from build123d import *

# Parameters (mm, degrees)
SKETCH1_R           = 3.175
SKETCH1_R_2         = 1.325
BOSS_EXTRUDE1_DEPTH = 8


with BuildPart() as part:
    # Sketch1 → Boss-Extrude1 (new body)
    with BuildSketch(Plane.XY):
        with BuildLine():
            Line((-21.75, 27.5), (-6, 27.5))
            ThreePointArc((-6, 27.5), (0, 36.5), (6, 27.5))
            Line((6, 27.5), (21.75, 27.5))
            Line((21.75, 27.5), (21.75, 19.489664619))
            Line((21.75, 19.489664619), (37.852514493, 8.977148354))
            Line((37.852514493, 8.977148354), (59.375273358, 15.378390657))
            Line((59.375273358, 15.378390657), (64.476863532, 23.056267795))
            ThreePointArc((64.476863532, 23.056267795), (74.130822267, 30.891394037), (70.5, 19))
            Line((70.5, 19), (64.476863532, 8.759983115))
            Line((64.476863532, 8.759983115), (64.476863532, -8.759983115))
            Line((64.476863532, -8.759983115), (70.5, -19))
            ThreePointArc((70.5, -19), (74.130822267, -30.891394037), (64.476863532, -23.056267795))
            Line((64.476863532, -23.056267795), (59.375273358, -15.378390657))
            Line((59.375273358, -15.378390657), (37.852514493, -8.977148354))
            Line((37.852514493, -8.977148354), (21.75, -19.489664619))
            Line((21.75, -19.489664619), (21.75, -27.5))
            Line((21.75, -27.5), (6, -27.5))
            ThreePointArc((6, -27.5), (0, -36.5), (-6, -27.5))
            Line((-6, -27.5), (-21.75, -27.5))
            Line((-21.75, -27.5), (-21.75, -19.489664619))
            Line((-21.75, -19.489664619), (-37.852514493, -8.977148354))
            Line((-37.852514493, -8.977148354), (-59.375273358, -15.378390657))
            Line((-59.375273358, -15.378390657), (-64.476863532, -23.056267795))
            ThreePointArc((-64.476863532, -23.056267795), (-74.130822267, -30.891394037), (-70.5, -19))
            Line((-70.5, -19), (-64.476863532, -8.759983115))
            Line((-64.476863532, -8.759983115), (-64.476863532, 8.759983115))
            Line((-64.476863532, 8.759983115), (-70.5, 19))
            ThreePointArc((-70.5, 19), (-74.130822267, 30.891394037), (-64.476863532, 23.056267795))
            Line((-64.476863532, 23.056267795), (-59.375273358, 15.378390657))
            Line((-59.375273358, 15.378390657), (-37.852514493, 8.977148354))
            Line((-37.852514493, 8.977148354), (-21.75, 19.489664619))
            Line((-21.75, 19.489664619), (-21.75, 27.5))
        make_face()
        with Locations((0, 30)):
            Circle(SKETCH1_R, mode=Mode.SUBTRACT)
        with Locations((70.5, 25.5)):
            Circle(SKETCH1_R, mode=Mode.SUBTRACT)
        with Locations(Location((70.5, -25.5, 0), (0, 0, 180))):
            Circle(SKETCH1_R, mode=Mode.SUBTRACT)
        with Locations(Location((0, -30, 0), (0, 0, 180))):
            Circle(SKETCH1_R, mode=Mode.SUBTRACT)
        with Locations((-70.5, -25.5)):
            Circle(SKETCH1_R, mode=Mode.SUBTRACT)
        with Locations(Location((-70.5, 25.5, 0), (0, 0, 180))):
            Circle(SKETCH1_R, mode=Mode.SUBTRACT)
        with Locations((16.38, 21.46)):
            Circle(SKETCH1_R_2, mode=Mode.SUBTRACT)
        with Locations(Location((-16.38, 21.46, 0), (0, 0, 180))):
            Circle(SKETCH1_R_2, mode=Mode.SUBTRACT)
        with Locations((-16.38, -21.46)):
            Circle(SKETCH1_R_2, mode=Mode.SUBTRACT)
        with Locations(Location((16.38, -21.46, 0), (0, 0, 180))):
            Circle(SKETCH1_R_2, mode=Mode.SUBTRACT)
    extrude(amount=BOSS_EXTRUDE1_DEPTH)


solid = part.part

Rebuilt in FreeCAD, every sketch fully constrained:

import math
import FreeCAD as App
import Part
import Sketcher

V = App.Vector
Q = App.Units.Quantity

doc = App.newDocument("Part")
body = doc.addObject("PartDesign::Body", "Body")

# Sketch on XY plane
sketch1 = body.newObject("Sketcher::SketchObject", "Sketch")
sketch1.AttachmentSupport = (doc.getObject("XY_Plane"), [""])
sketch1.MapMode = "FlatFace"
sketch1.addGeometry([
    Part.LineSegment(V(-6, 27.5, 0), V(-21.8, 27.5, 0)),  # 0
    Part.LineSegment(V(-21.8, 27.5, 0), V(-21.8, 19.5, 0)),  # 1
    Part.LineSegment(V(-21.8, 19.5, 0), V(-37.9, 9, 0)),  # 2
    Part.LineSegment(V(-37.9, 9, 0), V(-59.4, 15.4, 0)),  # 3
    Part.LineSegment(V(-59.4, 15.4, 0), V(-64.5, 23.1, 0)),  # 4
    Part.ArcOfCircle(Part.Circle(V(-70.5, 25.5, 0), V(0, 0, 1), 6.5), math.radians(-22), math.radians(270)),  # 5
    Part.LineSegment(V(-70.5, 19, 0), V(-64.5, 8.8, 0)),  # 6
    Part.LineSegment(V(-64.5, 8.8, 0), V(-64.5, -8.8, 0)),  # 7
    Part.LineSegment(V(-64.5, -8.8, 0), V(-70.5, -19, 0)),  # 8
    Part.ArcOfCircle(Part.Circle(V(-70.5, -25.5, 0), V(0, 0, 1), 6.5), math.radians(90), math.radians(382)),  # 9
    Part.LineSegment(V(-64.5, -23.1, 0), V(-59.4, -15.4, 0)),  # 10
    Part.LineSegment(V(-59.4, -15.4, 0), V(-37.9, -9, 0)),  # 11
    Part.LineSegment(V(-37.9, -9, 0), V(-21.8, -19.5, 0)),  # 12
    Part.LineSegment(V(-21.8, -19.5, 0), V(-21.8, -27.5, 0)),  # 13
    Part.LineSegment(V(-21.8, -27.5, 0), V(-6, -27.5, 0)),  # 14
    Part.ArcOfCircle(Part.Circle(V(0, -30, 0), V(0, 0, 1), 6.5), math.radians(157), math.radians(383)),  # 15
    Part.LineSegment(V(6, -27.5, 0), V(21.8, -27.5, 0)),  # 16
    Part.LineSegment(V(21.8, -27.5, 0), V(21.8, -19.5, 0)),  # 17
    Part.LineSegment(V(21.8, -19.5, 0), V(37.9, -9, 0)),  # 18
    Part.LineSegment(V(37.9, -9, 0), V(59.4, -15.4, 0)),  # 19
    Part.LineSegment(V(59.4, -15.4, 0), V(64.5, -23.1, 0)),  # 20
    Part.ArcOfCircle(Part.Circle(V(70.5, -25.5, 0), V(0, 0, 1), 6.5), math.radians(158), math.radians(450)),  # 21
    Part.LineSegment(V(70.5, -19, 0), V(64.5, -8.8, 0)),  # 22
    Part.LineSegment(V(64.5, -8.8, 0), V(64.5, 8.8, 0)),  # 23
    Part.LineSegment(V(64.5, 8.8, 0), V(70.5, 19, 0)),  # 24
    Part.ArcOfCircle(Part.Circle(V(70.5, 25.5, 0), V(0, 0, 1), 6.5), math.radians(-90), math.radians(202)),  # 25
    Part.LineSegment(V(64.5, 23.1, 0), V(59.4, 15.4, 0)),  # 26
    Part.LineSegment(V(59.4, 15.4, 0), V(37.9, 9, 0)),  # 27
    Part.LineSegment(V(37.9, 9, 0), V(21.8, 19.5, 0)),  # 28
    Part.LineSegment(V(21.8, 19.5, 0), V(21.8, 27.5, 0)),  # 29
    Part.LineSegment(V(21.8, 27.5, 0), V(6, 27.5, 0)),  # 30
    Part.ArcOfCircle(Part.Circle(V(0, 30, 0), V(0, 0, 1), 6.5), math.radians(-23), math.radians(203)),  # 31
    Part.Circle(V(70.5, -25.5, 0), V(0, 0, 1), 3.2),  # 32
    Part.Circle(V(16.4, -21.5, 0), V(0, 0, 1), 1.3),  # 33
    Part.Circle(V(0, -30, 0), V(0, 0, 1), 3.2),  # 34
    Part.Circle(V(-16.4, -21.5, 0), V(0, 0, 1), 1.3),  # 35
    Part.Circle(V(-70.5, -25.5, 0), V(0, 0, 1), 3.2),  # 36
    Part.Circle(V(70.5, 25.5, 0), V(0, 0, 1), 3.2),  # 37
    Part.Circle(V(16.4, 21.5, 0), V(0, 0, 1), 1.3),  # 38
    Part.Circle(V(-16.4, 21.5, 0), V(0, 0, 1), 1.3),  # 39
    Part.Circle(V(0, 30, 0), V(0, 0, 1), 3.2),  # 40
    Part.Circle(V(-70.5, 25.5, 0), V(0, 0, 1), 3.2),  # 41
], False)
sketch1.addConstraint([
    Sketcher.Constraint("Coincident", 0, 2, 1, 1),
    Sketcher.Constraint("Coincident", 1, 2, 2, 1),
    Sketcher.Constraint("Coincident", 2, 2, 3, 1),
    Sketcher.Constraint("Coincident", 3, 2, 4, 1),
    Sketcher.Constraint("Coincident", 4, 2, 5, 1),
    Sketcher.Constraint("Coincident", 5, 2, 6, 1),
    Sketcher.Constraint("Coincident", 6, 2, 7, 1),
    Sketcher.Constraint("Coincident", 7, 2, 8, 1),
    Sketcher.Constraint("Coincident", 8, 2, 9, 1),
    Sketcher.Constraint("Coincident", 9, 2, 10, 1),
    Sketcher.Constraint("Coincident", 10, 2, 11, 1),
    Sketcher.Constraint("Coincident", 11, 2, 12, 1),
    Sketcher.Constraint("Coincident", 12, 2, 13, 1),
    Sketcher.Constraint("Coincident", 13, 2, 14, 1),
    Sketcher.Constraint("Coincident", 14, 2, 15, 1),
    Sketcher.Constraint("Coincident", 15, 2, 16, 1),
    Sketcher.Constraint("Coincident", 16, 2, 17, 1),
    Sketcher.Constraint("Coincident", 17, 2, 18, 1),
    Sketcher.Constraint("Coincident", 18, 2, 19, 1),
    Sketcher.Constraint("Coincident", 19, 2, 20, 1),
    Sketcher.Constraint("Coincident", 20, 2, 21, 1),
    Sketcher.Constraint("Coincident", 21, 2, 22, 1),
    Sketcher.Constraint("Coincident", 22, 2, 23, 1),
    Sketcher.Constraint("Coincident", 23, 2, 24, 1),
    Sketcher.Constraint("Coincident", 24, 2, 25, 1),
    Sketcher.Constraint("Coincident", 25, 2, 26, 1),
    Sketcher.Constraint("Coincident", 26, 2, 27, 1),
    Sketcher.Constraint("Coincident", 27, 2, 28, 1),
    Sketcher.Constraint("Coincident", 28, 2, 29, 1),
    Sketcher.Constraint("Coincident", 29, 2, 30, 1),
    Sketcher.Constraint("Coincident", 30, 2, 31, 1),
    Sketcher.Constraint("Coincident", 31, 2, 0, 1),
    Sketcher.Constraint("Horizontal", 0),
    Sketcher.Constraint("Vertical", 1),
    Sketcher.Constraint("Vertical", 7),
    Sketcher.Constraint("Vertical", 13),
    Sketcher.Constraint("Horizontal", 14),
    Sketcher.Constraint("Horizontal", 16),
    Sketcher.Constraint("Vertical", 17),
    Sketcher.Constraint("Vertical", 23),
    Sketcher.Constraint("Vertical", 29),
    Sketcher.Constraint("Horizontal", 30),
    Sketcher.Constraint("Coincident", 32, 3, 21, 3),
    Sketcher.Constraint("Coincident", 34, 3, 15, 3),
    Sketcher.Constraint("Coincident", 36, 3, 9, 3),
    Sketcher.Constraint("Coincident", 37, 3, 25, 3),
    Sketcher.Constraint("Coincident", 40, 3, 31, 3),
    Sketcher.Constraint("Coincident", 41, 3, 5, 3),
    Sketcher.Constraint("Equal", 5, 9),
    Sketcher.Constraint("Equal", 9, 15),
    Sketcher.Constraint("Equal", 15, 21),
    Sketcher.Constraint("Equal", 21, 25),
    Sketcher.Constraint("Equal", 25, 31),
    Sketcher.Constraint("Equal", 32, 34),
    Sketcher.Constraint("Equal", 33, 35),
    Sketcher.Constraint("Equal", 34, 36),
    Sketcher.Constraint("Equal", 36, 37),
    Sketcher.Constraint("Equal", 35, 38),
    Sketcher.Constraint("Equal", 38, 39),
    Sketcher.Constraint("Equal", 37, 40),
    Sketcher.Constraint("Equal", 40, 41),
    Sketcher.Constraint("Symmetric", 5, 3, 21, 3, -1, 1),
    Sketcher.Constraint("Symmetric", 9, 3, 25, 3, -1, 1),
    Sketcher.Constraint("Symmetric", 15, 3, 31, 3, -1, 1),
    Sketcher.Constraint("Symmetric", 35, 3, 38, 3, -1, 1),
    Sketcher.Constraint("Symmetric", 33, 3, 39, 3, -1, 1),
    Sketcher.Constraint("Symmetric", 0, 2, 16, 2, -1, 1),
    Sketcher.Constraint("Symmetric", 2, 2, 18, 2, -1, 1),
    Sketcher.Constraint("Symmetric", 3, 2, 19, 2, -1, 1),
    Sketcher.Constraint("Symmetric", 6, 2, 22, 2, -1, 1),
    Sketcher.Constraint("Symmetric", 10, 2, 26, 2, -1, 1),
    Sketcher.Constraint("Symmetric", 11, 2, 27, 2, -1, 1),
    Sketcher.Constraint("Symmetric", 12, 2, 28, 2, -1, 1),
    Sketcher.Constraint("Symmetric", 9, 3, 21, 3, -2),
    Sketcher.Constraint("Symmetric", 33, 3, 35, 3, -2),
    Sketcher.Constraint("Symmetric", 14, 2, 15, 2, -2),
    Sketcher.Constraint("Symmetric", 12, 2, 17, 2, -2),
    Sketcher.Constraint("Symmetric", 11, 2, 18, 2, -2),
    Sketcher.Constraint("Symmetric", 10, 2, 19, 2, -2),
    Sketcher.Constraint("Parallel", 2, 18),
    Sketcher.Constraint("Parallel", 4, 20),
    Sketcher.Constraint("Parallel", 6, 22),
    Sketcher.Constraint("Parallel", 8, 24),
    Sketcher.Constraint("Parallel", 10, 26),
    Sketcher.Constraint("Horizontal", 9, 2, 20, 2),
    Sketcher.Constraint("Horizontal", 7, 2, 22, 2),
    Sketcher.Constraint("Horizontal", 6, 2, 23, 2),
    Sketcher.Constraint("Horizontal", 0, 2, 29, 2),
    Sketcher.Constraint("Vertical", 41, 3, 5, 2),
    Sketcher.Constraint("Vertical", 4, 2, 6, 2),
    Sketcher.Constraint("Vertical", 5, 2, 8, 2),
    Sketcher.Constraint("Radius", 5, Q("6.5 mm")),
    Sketcher.Constraint("Diameter", 32, Q("6.35 mm")),
    Sketcher.Constraint("Diameter", 33, Q("2.65 mm")),
    Sketcher.Constraint("DistanceY", 15, 3, -1, 1, Q("30 mm")),
    Sketcher.Constraint("DistanceY", -1, 1, 5, 2, Q("19 mm")),
    Sketcher.Constraint("DistanceX", 14, 2, -1, 1, Q("6 mm")),
    Sketcher.Constraint("DistanceX", 9, 3, 21, 3, Q("141 mm")),
    Sketcher.Constraint("DistanceX", 0, 2, 0, 1, Q("15.75 mm")),
    Sketcher.Constraint("DistanceX", -1, 1, 33, 3, Q("16.38 mm")),
    Sketcher.Constraint("DistanceY", 33, 3, -1, 1, Q("21.46 mm")),
    Sketcher.Constraint("Distance", 3, Q("22.454511 mm")),
    Sketcher.Constraint("DistanceY", 1, 2, 1, 1, Q("8.010335 mm")),
    Sketcher.Constraint("DistanceY", 7, 2, 7, 1, Q("17.519966 mm")),
    Sketcher.Constraint("DistanceY", -1, 1, 2, 2, Q("8.977148 mm")),
    Sketcher.Constraint("DistanceY", -1, 1, 3, 2, Q("15.378391 mm")),
    Sketcher.Constraint("DistanceX", 4, 2, 3, 2, Q("5.10159 mm")),
    Sketcher.Constraint("DistanceY", 2, 2, 4, 2, Q("14.079119 mm")),
])
pad1 = body.newObject("PartDesign::Pad", "Pad")
pad1.Profile = sketch1
pad1.Length = 8

doc.recompute()
